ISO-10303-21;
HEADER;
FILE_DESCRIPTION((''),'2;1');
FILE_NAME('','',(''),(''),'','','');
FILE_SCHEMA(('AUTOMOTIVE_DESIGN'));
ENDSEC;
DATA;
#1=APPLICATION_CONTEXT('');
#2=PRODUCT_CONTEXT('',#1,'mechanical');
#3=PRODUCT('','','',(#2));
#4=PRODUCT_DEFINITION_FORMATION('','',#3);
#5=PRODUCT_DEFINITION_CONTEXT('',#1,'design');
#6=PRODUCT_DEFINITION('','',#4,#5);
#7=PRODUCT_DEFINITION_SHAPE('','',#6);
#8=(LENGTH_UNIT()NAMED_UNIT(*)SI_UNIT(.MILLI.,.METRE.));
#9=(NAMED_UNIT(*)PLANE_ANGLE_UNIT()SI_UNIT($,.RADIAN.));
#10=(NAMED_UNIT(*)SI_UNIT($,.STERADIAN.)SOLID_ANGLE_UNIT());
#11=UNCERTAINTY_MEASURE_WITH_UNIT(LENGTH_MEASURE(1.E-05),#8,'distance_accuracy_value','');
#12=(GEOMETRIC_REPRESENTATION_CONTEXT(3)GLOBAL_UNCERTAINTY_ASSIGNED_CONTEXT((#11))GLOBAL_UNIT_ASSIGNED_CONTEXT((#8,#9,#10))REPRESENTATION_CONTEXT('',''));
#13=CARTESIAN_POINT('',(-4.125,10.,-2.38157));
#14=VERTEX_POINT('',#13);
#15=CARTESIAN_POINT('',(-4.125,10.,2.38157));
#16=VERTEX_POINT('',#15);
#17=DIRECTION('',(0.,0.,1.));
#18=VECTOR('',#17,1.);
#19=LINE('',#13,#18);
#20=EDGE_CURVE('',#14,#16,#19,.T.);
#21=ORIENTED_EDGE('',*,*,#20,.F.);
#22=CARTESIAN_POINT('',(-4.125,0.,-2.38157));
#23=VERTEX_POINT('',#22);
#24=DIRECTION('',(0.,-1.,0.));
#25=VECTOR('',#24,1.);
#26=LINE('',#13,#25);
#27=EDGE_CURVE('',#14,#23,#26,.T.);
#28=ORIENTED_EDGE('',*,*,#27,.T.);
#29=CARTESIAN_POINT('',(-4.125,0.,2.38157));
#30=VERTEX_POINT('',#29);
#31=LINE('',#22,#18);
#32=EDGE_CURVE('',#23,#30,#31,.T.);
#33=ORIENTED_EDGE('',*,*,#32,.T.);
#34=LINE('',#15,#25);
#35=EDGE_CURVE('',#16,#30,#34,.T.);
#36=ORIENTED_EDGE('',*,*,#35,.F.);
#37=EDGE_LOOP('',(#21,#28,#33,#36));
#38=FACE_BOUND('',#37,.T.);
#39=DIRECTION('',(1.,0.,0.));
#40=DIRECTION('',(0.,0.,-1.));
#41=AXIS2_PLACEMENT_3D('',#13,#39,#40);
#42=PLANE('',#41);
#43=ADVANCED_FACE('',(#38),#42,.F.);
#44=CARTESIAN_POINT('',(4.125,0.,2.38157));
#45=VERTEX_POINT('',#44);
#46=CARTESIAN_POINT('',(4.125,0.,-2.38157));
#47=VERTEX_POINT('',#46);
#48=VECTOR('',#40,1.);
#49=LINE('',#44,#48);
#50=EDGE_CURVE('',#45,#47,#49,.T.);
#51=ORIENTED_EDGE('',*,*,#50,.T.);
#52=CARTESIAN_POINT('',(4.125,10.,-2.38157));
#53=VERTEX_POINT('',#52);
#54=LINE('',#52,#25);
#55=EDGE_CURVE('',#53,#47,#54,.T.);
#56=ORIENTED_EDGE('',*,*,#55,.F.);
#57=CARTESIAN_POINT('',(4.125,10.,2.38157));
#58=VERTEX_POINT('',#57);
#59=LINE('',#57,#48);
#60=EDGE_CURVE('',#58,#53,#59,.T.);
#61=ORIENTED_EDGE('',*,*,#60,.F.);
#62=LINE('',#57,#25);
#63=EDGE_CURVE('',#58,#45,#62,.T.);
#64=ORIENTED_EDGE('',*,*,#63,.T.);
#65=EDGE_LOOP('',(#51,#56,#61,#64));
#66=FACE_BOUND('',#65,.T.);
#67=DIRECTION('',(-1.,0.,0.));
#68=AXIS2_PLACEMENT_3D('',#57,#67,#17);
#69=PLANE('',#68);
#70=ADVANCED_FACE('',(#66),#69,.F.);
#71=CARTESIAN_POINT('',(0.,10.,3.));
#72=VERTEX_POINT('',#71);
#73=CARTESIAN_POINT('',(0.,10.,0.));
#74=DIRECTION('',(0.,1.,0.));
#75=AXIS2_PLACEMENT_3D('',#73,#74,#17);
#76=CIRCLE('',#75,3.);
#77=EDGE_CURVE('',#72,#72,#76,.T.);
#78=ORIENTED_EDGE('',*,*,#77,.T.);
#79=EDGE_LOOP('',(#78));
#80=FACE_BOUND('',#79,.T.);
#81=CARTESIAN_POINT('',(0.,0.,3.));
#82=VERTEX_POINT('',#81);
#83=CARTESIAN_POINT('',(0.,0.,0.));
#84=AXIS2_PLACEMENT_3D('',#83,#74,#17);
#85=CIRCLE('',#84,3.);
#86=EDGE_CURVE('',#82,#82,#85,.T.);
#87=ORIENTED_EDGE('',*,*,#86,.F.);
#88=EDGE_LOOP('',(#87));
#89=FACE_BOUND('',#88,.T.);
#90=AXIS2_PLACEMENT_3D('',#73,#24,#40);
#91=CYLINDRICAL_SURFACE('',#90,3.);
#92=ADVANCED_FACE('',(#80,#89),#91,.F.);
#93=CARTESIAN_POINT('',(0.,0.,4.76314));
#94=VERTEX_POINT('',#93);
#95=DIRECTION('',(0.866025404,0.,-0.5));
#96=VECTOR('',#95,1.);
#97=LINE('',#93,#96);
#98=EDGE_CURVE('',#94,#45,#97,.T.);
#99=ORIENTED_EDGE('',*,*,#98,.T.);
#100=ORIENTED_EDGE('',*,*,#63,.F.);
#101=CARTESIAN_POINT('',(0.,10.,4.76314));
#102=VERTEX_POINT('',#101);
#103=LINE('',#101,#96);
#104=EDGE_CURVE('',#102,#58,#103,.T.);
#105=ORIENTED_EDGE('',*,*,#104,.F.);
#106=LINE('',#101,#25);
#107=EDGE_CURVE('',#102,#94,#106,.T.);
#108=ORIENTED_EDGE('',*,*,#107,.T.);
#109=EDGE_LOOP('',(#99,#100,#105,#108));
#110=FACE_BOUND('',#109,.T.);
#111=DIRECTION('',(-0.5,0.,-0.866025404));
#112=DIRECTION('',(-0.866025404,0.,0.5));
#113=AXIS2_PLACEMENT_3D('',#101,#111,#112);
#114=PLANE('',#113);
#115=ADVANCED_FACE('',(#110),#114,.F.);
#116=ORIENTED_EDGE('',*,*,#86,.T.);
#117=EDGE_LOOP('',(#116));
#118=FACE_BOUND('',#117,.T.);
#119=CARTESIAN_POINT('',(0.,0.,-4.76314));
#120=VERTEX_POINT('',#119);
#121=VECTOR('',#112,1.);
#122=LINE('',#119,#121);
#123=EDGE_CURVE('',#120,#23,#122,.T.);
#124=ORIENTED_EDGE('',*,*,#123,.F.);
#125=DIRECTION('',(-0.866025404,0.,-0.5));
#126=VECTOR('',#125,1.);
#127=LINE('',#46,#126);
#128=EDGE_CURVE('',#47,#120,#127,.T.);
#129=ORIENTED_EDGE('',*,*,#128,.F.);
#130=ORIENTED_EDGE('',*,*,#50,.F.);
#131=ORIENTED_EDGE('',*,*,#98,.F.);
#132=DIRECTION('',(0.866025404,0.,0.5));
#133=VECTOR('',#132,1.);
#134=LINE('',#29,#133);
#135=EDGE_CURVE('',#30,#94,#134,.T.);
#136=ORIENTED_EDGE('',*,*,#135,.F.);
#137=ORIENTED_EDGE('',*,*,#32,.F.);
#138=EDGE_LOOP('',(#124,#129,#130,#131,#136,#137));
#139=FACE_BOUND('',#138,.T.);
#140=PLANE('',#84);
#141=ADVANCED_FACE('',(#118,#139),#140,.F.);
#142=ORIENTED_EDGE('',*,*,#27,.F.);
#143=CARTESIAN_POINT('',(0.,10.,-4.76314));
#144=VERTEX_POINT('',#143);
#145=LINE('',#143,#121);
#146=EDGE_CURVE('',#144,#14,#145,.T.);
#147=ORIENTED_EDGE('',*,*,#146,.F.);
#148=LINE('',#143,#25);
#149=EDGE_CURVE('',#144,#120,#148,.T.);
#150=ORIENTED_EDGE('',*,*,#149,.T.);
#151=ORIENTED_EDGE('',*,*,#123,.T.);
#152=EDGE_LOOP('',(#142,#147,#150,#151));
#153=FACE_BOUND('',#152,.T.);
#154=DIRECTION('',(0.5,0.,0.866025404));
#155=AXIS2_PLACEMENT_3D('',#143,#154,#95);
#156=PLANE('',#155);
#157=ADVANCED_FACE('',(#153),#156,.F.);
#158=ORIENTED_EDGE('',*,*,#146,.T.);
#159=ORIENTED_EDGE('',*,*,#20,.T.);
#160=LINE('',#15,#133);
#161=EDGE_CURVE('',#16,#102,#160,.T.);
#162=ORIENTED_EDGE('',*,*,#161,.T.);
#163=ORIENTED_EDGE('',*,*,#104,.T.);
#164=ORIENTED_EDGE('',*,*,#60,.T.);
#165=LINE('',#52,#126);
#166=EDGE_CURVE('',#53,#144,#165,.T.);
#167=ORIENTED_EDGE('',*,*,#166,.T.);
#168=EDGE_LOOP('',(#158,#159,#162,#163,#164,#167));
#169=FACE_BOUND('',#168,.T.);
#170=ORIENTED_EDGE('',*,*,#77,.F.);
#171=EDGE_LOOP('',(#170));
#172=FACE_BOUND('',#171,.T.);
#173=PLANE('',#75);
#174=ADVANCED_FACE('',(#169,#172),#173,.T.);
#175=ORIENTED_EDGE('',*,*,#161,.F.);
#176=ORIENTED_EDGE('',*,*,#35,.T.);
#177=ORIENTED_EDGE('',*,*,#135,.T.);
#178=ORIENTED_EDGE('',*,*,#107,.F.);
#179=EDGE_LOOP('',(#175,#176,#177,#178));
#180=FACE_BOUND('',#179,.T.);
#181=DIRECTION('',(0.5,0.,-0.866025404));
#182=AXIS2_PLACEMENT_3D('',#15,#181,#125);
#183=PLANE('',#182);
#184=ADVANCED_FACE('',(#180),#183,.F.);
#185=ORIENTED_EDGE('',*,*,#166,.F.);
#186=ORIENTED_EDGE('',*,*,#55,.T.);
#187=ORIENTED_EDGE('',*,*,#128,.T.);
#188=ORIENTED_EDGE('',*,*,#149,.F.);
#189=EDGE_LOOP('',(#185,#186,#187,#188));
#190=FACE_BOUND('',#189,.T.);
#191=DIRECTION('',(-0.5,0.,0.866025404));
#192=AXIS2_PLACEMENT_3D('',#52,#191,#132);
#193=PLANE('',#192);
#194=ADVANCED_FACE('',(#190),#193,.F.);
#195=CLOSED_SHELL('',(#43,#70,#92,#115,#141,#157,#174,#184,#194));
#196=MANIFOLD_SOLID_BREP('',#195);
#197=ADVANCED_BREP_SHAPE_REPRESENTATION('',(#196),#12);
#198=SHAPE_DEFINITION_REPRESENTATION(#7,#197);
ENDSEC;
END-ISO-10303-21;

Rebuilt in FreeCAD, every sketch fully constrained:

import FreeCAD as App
import Part
import Sketcher
from FreeCAD import Vector
Q = App.Units.Quantity

doc = App.newDocument("Part")
body = doc.addObject("PartDesign::Body", "Body")

sketch1 = body.newObject("Sketcher::SketchObject", "Sketch")
sketch1.AttachmentSupport = (doc.getObject("XZ_Plane"), [""])
sketch1.MapMode = "FlatFace"
sketch1.addGeometry([
    Part.LineSegment(Vector(0, -4.8, 0), Vector(-4.1, -2.4, 0)),
    Part.LineSegment(Vector(-4.1, -2.4, 0), Vector(-4.1, 2.4, 0)),
    Part.LineSegment(Vector(-4.1, 2.4, 0), Vector(0, 4.8, 0)),
    Part.LineSegment(Vector(0, 4.8, 0), Vector(4.1, 2.4, 0)),
    Part.LineSegment(Vector(4.1, 2.4, 0), Vector(4.1, -2.4, 0)),
    Part.LineSegment(Vector(4.1, -2.4, 0), Vector(0, -4.8, 0)),
    Part.Circle(Vector(0, 0, 0), Vector(0, 0, 1), 3),
], False)
sketch1.addConstraint([
    Sketcher.Constraint("Coincident", 0, 2, 1, 1),
    Sketcher.Constraint("Coincident", 1, 2, 2, 1),
    Sketcher.Constraint("Coincident", 2, 2, 3, 1),
    Sketcher.Constraint("Coincident", 3, 2, 4, 1),
    Sketcher.Constraint("Coincident", 4, 2, 5, 1),
    Sketcher.Constraint("Coincident", 5, 2, 0, 1),
    Sketcher.Constraint("Vertical", 1),
    Sketcher.Constraint("Vertical", 4),
    Sketcher.Constraint("Coincident", 6, 3, -1, 1),
    Sketcher.Constraint("Symmetric", 0, 2, 3, 2, -1, 1),
    Sketcher.Constraint("Symmetric", 2, 2, 5, 2, -1, 1),
    Sketcher.Constraint("PointOnObject", 2, 2, -2),
    Sketcher.Constraint("Parallel", 2, 5),
    Sketcher.Constraint("Horizontal", 1, 2, 3, 2),
    Sketcher.Constraint("Diameter", 6, Q("6 mm")),
    Sketcher.Constraint("Angle", 0, Q("150 deg")),
    Sketcher.Constraint("DistanceX", 1, 2, 3, 2, Q("8.25 mm")),
    Sketcher.Constraint("DistanceY", 1, 1, 1, 2, Q("4.76314 mm")),
])
pad1 = body.newObject("PartDesign::Pad", "Pad")
pad1.Profile = sketch1
pad1.Length = 10
pad1.Reversed = True

doc.recompute()
